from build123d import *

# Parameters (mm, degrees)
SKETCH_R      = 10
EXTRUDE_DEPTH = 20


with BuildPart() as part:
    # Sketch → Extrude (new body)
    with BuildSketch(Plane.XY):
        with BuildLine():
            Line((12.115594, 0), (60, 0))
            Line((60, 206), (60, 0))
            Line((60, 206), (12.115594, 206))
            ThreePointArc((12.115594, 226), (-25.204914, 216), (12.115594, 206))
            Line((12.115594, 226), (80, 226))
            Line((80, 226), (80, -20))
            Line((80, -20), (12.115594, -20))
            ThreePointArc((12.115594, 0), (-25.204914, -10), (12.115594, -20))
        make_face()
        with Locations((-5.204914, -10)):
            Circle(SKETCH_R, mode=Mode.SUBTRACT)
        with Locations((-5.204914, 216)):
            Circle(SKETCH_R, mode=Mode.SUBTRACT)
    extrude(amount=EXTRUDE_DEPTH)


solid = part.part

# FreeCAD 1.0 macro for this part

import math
import FreeCAD as App
import Part
import Sketcher
from FreeCAD import Vector

doc = App.newDocument("Part")
body = doc.addObject("PartDesign::Body", "Body")

# Sketch on XY plane
sketch1 = body.newObject("Sketcher::SketchObject", "Sketch")
sketch1.AttachmentSupport = (doc.getObject("XY_Plane"), [""])
sketch1.MapMode = "FlatFace"
sketch1.addGeometry(Part.LineSegment(Vector(60, 0, 0), Vector(12, 0, 0)), False)
sketch1.addGeometry(Part.ArcOfCircle(Part.Circle(Vector(-5, -10, 0), Vector(0, 0, 1), 20), math.radians(30), math.radians(330)), False)
sketch1.addGeometry(Part.LineSegment(Vector(12, -20, 0), Vector(80, -20, 0)), False)
sketch1.addGeometry(Part.LineSegment(Vector(80, -20, 0), Vector(80, 226, 0)), False)
sketch1.addGeometry(Part.LineSegment(Vector(80, 226, 0), Vector(12, 226, 0)), False)
sketch1.addGeometry(Part.ArcOfCircle(Part.Circle(Vector(-5, 216, 0), Vector(0, 0, 1), 20), math.radians(30), math.radians(330)), False)
sketch1.addGeometry(Part.LineSegment(Vector(12, 206, 0), Vector(60, 206, 0)), False)
sketch1.addGeometry(Part.LineSegment(Vector(60, 206, 0), Vector(60, 0, 0)), False)
sketch1.addGeometry(Part.Circle(Vector(-5, -10, 0), Vector(0, 0, 1), 10), False)
sketch1.addGeometry(Part.Circle(Vector(-5, 216, 0), Vector(0, 0, 1), 10), False)
sketch1.addConstraint(Sketcher.Constraint("Coincident", 0, 2, 1, 1))
sketch1.addConstraint(Sketcher.Constraint("Coincident", 1, 2, 2, 1))
sketch1.addConstraint(Sketcher.Constraint("Coincident", 2, 2, 3, 1))
sketch1.addConstraint(Sketcher.Constraint("Coincident", 3, 2, 4, 1))
sketch1.addConstraint(Sketcher.Constraint("Coincident", 4, 2, 5, 1))
sketch1.addConstraint(Sketcher.Constraint("Coincident", 5, 2, 6, 1))
sketch1.addConstraint(Sketcher.Constraint("Coincident", 6, 2, 7, 1))
sketch1.addConstraint(Sketcher.Constraint("Coincident", 7, 2, 0, 1))
sketch1.addConstraint(Sketcher.Constraint("Horizontal", 0))
sketch1.addConstraint(Sketcher.Constraint("Horizontal", 2))
sketch1.addConstraint(Sketcher.Constraint("Vertical", 3))
sketch1.addConstraint(Sketcher.Constraint("Horizontal", 4))
sketch1.addConstraint(Sketcher.Constraint("Horizontal", 6))
sketch1.addConstraint(Sketcher.Constraint("Vertical", 7))
sketch1.addConstraint(Sketcher.Constraint("Coincident", 8, 3, 1, 3))
sketch1.addConstraint(Sketcher.Constraint("Coincident", 9, 3, 5, 3))
sketch1.addConstraint(Sketcher.Constraint("Equal", 1, 5))
sketch1.addConstraint(Sketcher.Constraint("Equal", 8, 9))
sketch1.addConstraint(Sketcher.Constraint("PointOnObject", 0, 2, -1))
sketch1.addConstraint(Sketcher.Constraint("Vertical", 1, 3, 5, 3))
sketch1.addConstraint(Sketcher.Constraint("Vertical", 0, 2, 1, 2))
sketch1.addConstraint(Sketcher.Constraint("Vertical", 1, 2, 4, 2))
sketch1.addConstraint(Sketcher.Constraint("Vertical", 4, 2, 5, 2))
sketch1.addConstraint(Sketcher.Constraint("Diameter", 8, 20.0))
sketch1.addConstraint(Sketcher.Constraint("Radius", 1, 20.0))
sketch1.addConstraint(Sketcher.Constraint("DistanceY", 3, 1, 3, 2, 246.0))
sketch1.addConstraint(Sketcher.Constraint("DistanceY", 7, 2, 7, 1, 206.0))
sketch1.addConstraint(Sketcher.Constraint("DistanceX", -1, 1, 2, 2, 80.0))
sketch1.addConstraint(Sketcher.Constraint("DistanceX", -1, 1, 6, 2, 60.0))
sketch1.addConstraint(Sketcher.Constraint("DistanceX", 0, 2, 0, 1, 47.884406))
pad1 = body.newObject("PartDesign::Pad", "Pad")
pad1.Profile = sketch1
pad1.Length = 20

doc.recompute()
